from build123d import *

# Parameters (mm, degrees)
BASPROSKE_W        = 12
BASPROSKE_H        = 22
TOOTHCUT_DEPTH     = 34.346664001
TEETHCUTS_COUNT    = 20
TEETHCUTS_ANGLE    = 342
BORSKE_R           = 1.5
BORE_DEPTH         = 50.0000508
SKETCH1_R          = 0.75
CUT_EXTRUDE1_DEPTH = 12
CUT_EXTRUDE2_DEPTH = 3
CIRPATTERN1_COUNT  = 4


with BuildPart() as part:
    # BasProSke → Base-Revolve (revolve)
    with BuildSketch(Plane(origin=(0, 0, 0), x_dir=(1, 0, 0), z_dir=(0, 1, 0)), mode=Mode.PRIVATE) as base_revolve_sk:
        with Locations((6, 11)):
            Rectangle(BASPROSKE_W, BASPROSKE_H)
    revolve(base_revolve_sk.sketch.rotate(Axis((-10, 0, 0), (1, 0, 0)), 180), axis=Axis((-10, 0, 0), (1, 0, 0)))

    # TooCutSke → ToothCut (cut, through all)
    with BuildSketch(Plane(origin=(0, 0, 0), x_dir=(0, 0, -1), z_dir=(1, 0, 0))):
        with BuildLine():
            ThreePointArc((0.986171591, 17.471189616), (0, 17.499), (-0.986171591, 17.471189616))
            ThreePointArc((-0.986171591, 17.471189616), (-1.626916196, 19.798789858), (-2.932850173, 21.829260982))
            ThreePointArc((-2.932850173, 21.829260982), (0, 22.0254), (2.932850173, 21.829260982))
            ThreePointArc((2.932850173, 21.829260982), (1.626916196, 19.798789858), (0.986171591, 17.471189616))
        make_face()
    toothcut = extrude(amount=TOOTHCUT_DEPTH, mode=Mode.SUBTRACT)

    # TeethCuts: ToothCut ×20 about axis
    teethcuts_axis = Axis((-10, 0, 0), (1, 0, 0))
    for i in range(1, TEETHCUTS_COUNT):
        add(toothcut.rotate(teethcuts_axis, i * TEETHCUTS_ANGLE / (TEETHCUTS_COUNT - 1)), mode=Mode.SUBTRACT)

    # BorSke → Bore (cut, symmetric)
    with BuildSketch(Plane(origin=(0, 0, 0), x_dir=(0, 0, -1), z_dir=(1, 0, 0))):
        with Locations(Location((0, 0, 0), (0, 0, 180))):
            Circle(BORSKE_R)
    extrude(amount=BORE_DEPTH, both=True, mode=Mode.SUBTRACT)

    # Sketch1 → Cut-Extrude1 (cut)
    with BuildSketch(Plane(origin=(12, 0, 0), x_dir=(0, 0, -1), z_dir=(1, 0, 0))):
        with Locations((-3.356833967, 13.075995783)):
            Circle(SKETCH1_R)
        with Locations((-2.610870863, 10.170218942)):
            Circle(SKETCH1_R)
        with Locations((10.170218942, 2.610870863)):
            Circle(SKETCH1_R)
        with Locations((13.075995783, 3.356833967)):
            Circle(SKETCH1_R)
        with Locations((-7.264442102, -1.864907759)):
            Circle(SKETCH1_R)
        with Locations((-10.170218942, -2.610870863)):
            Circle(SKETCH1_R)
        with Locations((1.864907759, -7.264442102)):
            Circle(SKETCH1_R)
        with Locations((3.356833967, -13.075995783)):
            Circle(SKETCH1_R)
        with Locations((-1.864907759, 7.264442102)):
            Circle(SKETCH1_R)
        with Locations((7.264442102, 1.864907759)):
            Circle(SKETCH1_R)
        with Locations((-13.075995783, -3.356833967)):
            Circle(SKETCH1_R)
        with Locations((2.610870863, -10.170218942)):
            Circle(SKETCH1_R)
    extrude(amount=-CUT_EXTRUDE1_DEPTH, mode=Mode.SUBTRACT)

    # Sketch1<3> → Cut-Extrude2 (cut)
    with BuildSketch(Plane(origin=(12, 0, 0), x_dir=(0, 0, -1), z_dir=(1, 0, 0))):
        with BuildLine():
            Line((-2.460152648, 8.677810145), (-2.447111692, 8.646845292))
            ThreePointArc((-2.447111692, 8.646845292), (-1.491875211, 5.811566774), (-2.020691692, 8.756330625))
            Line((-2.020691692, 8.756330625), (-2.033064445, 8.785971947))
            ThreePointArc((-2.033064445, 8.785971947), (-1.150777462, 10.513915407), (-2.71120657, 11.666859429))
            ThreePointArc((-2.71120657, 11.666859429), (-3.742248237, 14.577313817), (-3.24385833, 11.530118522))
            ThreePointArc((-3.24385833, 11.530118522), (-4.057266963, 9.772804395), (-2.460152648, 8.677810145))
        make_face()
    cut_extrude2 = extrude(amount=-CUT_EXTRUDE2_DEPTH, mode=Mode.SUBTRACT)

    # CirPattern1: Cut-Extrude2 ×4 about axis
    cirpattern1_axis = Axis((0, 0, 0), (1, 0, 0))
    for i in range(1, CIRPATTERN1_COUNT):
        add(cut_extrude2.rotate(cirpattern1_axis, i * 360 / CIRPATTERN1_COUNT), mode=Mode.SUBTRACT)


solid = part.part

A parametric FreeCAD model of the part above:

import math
import FreeCAD as App
import Part
import Sketcher
Q = App.Units.Quantity


def add_polygon(sketch, points):
    """Adds a closed chain of lines whose ends are joined by coincident constraints."""
    first, n = sketch.GeometryCount, len(points)
    for a, b in zip(points, points[1:] + points[:1]):
        sketch.addGeometry(Part.LineSegment(App.Vector(*a, 0), App.Vector(*b, 0)), False)
    for i in range(n):
        sketch.addConstraint(Sketcher.Constraint("Coincident", first + i, 2, first + (i + 1) % n, 1))

doc = App.newDocument("Part")
params = doc.addObject("Spreadsheet::Sheet", "Params")
for row, (alias, value) in enumerate([
    ("sketch1_width", "12 mm"),
    ("sketch1_height", "22 mm"),
    ("revolution_angle", "360 deg"),
    ("sketch2_radius", "8 mm"),
    ("sketch3_diameter", "3 mm"),
    ("pocket2_length", "100.000102 mm"),
    ("sketch4_diameter", "1.5 mm"),
    ("pocket3_length", "12 mm"),
    ("sketch5_radius", "1.5 mm"),
    ("sketch5_radius2", "1.55 mm"),
    ("pocket4_length", "3 mm"),
], start=1):
    params.set(f"A{row}", alias)
    params.set(f"B{row}", "=" + value)
    params.setAlias(f"B{row}", alias)

body = doc.addObject("PartDesign::Body", "Body")

sketch1 = body.newObject("Sketcher::SketchObject", "Sketch")
sketch1.AttachmentSupport = (doc.getObject("XZ_Plane"), [""])
sketch1.MapMode = "FlatFace"
add_polygon(sketch1, [(0, -22), (0, 0), (12, 0), (12, -22)])
sketch1.addConstraint([
    Sketcher.Constraint("Vertical", 0),
    Sketcher.Constraint("Horizontal", 1),
    Sketcher.Constraint("Vertical", 2),
    Sketcher.Constraint("Horizontal", 3),
    Sketcher.Constraint("Coincident", 0, 2, -1, 1),
    Sketcher.Constraint("DistanceX", 1, 1, 1, 2, Q("12 mm")),
    Sketcher.Constraint("DistanceY", 0, 1, 0, 2, Q("22 mm")),
])
sketch1.setExpression("Constraints[9]", "Params.sketch1_width")
sketch1.setExpression("Constraints[10]", "Params.sketch1_height")
revolution = body.newObject("PartDesign::Revolution", "Revolution")
revolution.Profile = sketch1
revolution.ReferenceAxis = (sketch1, ["H_Axis"])
revolution.setExpression("Angle", "Params.revolution_angle")

sketch2 = body.newObject("Sketcher::SketchObject", "Sketch001")
sketch2.AttachmentSupport = (doc.getObject("YZ_Plane"), [""])
sketch2.MapMode = "FlatFace"
sketch2.addGeometry([
    Part.ArcOfCircle(Part.Circle(App.Vector(0, 0, 0), App.Vector(0, 0, 1), 17.499), math.radians(-3.230666), math.radians(3.230666)),
    Part.ArcOfCircle(Part.Circle(App.Vector(16.536031, -8.931326, 0), App.Vector(0, 0, 1), 8), math.radians(48.573876), math.radians(83.287069)),
    Part.ArcOfCircle(Part.Circle(App.Vector(0, 0, 0), App.Vector(0, 0, 1), 22.0254), math.radians(-7.652098), math.radians(7.652098)),
    Part.ArcOfCircle(Part.Circle(App.Vector(16.536031, 8.931326, 0), App.Vector(0, 0, 1), 8), math.radians(-83.287069), math.radians(-48.573876)),
], False)
sketch2.addConstraint([
    Sketcher.Constraint("Coincident", 0, 1, 1, 2),
    Sketcher.Constraint("Coincident", 1, 1, 2, 1),
    Sketcher.Constraint("Coincident", 2, 2, 3, 2),
    Sketcher.Constraint("Coincident", 3, 1, 0, 2),
    Sketcher.Constraint("Coincident", 0, 3, -1, 1),
    Sketcher.Constraint("Coincident", 2, 3, -1, 1),
    Sketcher.Constraint("Equal", 1, 3),
    Sketcher.Constraint("Symmetric", 1, 3, 3, 3, -1),
    Sketcher.Constraint("Radius", 1, Q("8 mm")),
    Sketcher.Constraint("Radius", 0, Q("17.499 mm")),
    Sketcher.Constraint("Radius", 2, Q("22.0254 mm")),
    Sketcher.Constraint("DistanceY", 1, 1, 2, 2, Q("5.8657 mm")),
    Sketcher.Constraint("DistanceX", -1, 1, 1, 3, Q("16.536031 mm")),
])
sketch2.setExpression("Constraints[8]", "Params.sketch2_radius")
pocket1 = body.newObject("PartDesign::Pocket", "Pocket")
pocket1.Profile = sketch2
pocket1.Type = "ThroughAll"
pocket1.Reversed = True
doc.recompute()

polarpattern = body.newObject("PartDesign::PolarPattern", "PolarPattern")
polarpattern.Originals = [pocket1]
polarpattern.Axis = (doc.getObject("X_Axis"), [""])
polarpattern.Angle = 360
polarpattern.Occurrences = 20
body.Tip = polarpattern

sketch3 = body.newObject("Sketcher::SketchObject", "Sketch002")
sketch3.AttachmentSupport = (doc.getObject("YZ_Plane"), [""])
sketch3.MapMode = "FlatFace"
sketch3.addGeometry(Part.Circle(App.Vector(0, 0, 0), App.Vector(0, 0, 1), 1.5), False)
sketch3.addConstraint([
    Sketcher.Constraint("Coincident", 0, 3, -1, 1),
    Sketcher.Constraint("Diameter", 0, Q("3 mm")),
])
sketch3.setExpression("Constraints[1]", "Params.sketch3_diameter")
pocket2 = body.newObject("PartDesign::Pocket", "Pocket001")
pocket2.Profile = sketch3
pocket2.setExpression("Length", "Params.pocket2_length")
pocket2.Midplane = True

sketch4 = body.newObject("Sketcher::SketchObject", "Sketch003")
sketch4.AttachmentSupport = (doc.getObject("YZ_Plane"), [""])
sketch4.MapMode = "FlatFace"
sketch4.AttachmentOffset = App.Placement(App.Vector(0, 0, 12), App.Rotation())
sketch4.addGeometry([
    Part.Circle(App.Vector(13.075996, 3.356834, 0), App.Vector(0, 0, 1), 0.75),
    Part.Circle(App.Vector(10.170219, 2.610871, 0), App.Vector(0, 0, 1), 0.75),
    Part.Circle(App.Vector(2.610871, -10.170219, 0), App.Vector(0, 0, 1), 0.75),
    Part.Circle(App.Vector(3.356834, -13.075996, 0), App.Vector(0, 0, 1), 0.75),
    Part.Circle(App.Vector(-1.864908, 7.264442, 0), App.Vector(0, 0, 1), 0.75),
    Part.Circle(App.Vector(-2.610871, 10.170219, 0), App.Vector(0, 0, 1), 0.75),
    Part.Circle(App.Vector(-7.264442, -1.864908, 0), App.Vector(0, 0, 1), 0.75),
    Part.Circle(App.Vector(-13.075996, -3.356834, 0), App.Vector(0, 0, 1), 0.75),
    Part.Circle(App.Vector(7.264442, 1.864908, 0), App.Vector(0, 0, 1), 0.75),
    Part.Circle(App.Vector(1.864908, -7.264442, 0), App.Vector(0, 0, 1), 0.75),
    Part.Circle(App.Vector(-3.356834, 13.075996, 0), App.Vector(0, 0, 1), 0.75),
    Part.Circle(App.Vector(-10.170219, -2.610871, 0), App.Vector(0, 0, 1), 0.75),
], False)
sketch4.addConstraint([
    Sketcher.Constraint("Equal", 0, 1),
    Sketcher.Constraint("Equal", 1, 2),
    Sketcher.Constraint("Equal", 2, 3),
    Sketcher.Constraint("Equal", 3, 4),
    Sketcher.Constraint("Equal", 4, 5),
    Sketcher.Constraint("Equal", 5, 6),
    Sketcher.Constraint("Equal", 6, 7),
    Sketcher.Constraint("Equal", 7, 8),
    Sketcher.Constraint("Equal", 8, 9),
    Sketcher.Constraint("Equal", 9, 10),
    Sketcher.Constraint("Equal", 10, 11),
    Sketcher.Constraint("Symmetric", 2, 3, 5, 3, -1, 1),
    Sketcher.Constraint("Symmetric", 0, 3, 7, 3, -1, 1),
    Sketcher.Constraint("Symmetric", 6, 3, 8, 3, -1, 1),
    Sketcher.Constraint("Symmetric", 4, 3, 9, 3, -1, 1),
    Sketcher.Constraint("Symmetric", 3, 3, 10, 3, -1, 1),
    Sketcher.Constraint("Symmetric", 1, 3, 11, 3, -1, 1),
    Sketcher.Constraint("Diameter", 0, Q("1.5 mm")),
    Sketcher.Constraint("DistanceX", -1, 1, 1, 3, Q("10.170219 mm")),
    Sketcher.Constraint("DistanceY", -1, 1, 1, 3, Q("2.610871 mm")),
    Sketcher.Constraint("DistanceX", -1, 1, 2, 3, Q("2.610871 mm")),
    Sketcher.Constraint("DistanceY", 2, 3, -1, 1, Q("10.170219 mm")),
    Sketcher.Constraint("DistanceX", 3, 3, 0, 3, Q("9.719162 mm")),
    Sketcher.Constraint("DistanceY", 3, 3, 0, 3, Q("16.43283 mm")),
    Sketcher.Constraint("DistanceY", 1, 3, 4, 3, Q("4.653571 mm")),
    Sketcher.Constraint("DistanceY", 0, 3, 4, 3, Q("3.907608 mm")),
    Sketcher.Constraint("DistanceX", 4, 3, 2, 3, Q("4.475779 mm")),
    Sketcher.Constraint("DistanceX", 4, 3, 3, 3, Q("5.221742 mm")),
    Sketcher.Constraint("DistanceY", 6, 3, 4, 3, Q("9.12935 mm")),
    Sketcher.Constraint("DistanceX", 6, 3, 5, 3, Q("4.653571 mm")),
])
sketch4.setExpression("Constraints[17]", "Params.sketch4_diameter")
pocket3 = body.newObject("PartDesign::Pocket", "Pocket002")
pocket3.Profile = sketch4
pocket3.setExpression("Length", "Params.pocket3_length")

sketch5 = body.newObject("Sketcher::SketchObject", "Sketch004")
sketch5.AttachmentSupport = (doc.getObject("YZ_Plane"), [""])
sketch5.MapMode = "FlatFace"
sketch5.AttachmentOffset = App.Placement(App.Vector(0, 0, 12), App.Rotation())
sketch5.addGeometry([
    Part.LineSegment(App.Vector(8.67781, 2.460153, 0), App.Vector(8.646845, 2.447112, 0)),
    Part.ArcOfCircle(Part.Circle(App.Vector(7.264442, 1.864908, 0), App.Vector(0, 0, 1), 1.5), math.radians(22.838563), math.radians(365.961257)),
    Part.LineSegment(App.Vector(8.756331, 2.020692, 0), App.Vector(8.785972, 2.033064, 0)),
    Part.ArcOfCircle(Part.Circle(App.Vector(10.170219, 2.610871, 0), App.Vector(0, 0, 1), 1.5), math.radians(-157.343577), math.radians(3.835405)),
    Part.ArcOfCircle(Part.Circle(App.Vector(13.075996, 3.356834, 0), App.Vector(0, 0, 1), 1.55), math.radians(-155.384055), math.radians(184.179853)),
    Part.ArcOfCircle(Part.Circle(App.Vector(10.170219, 2.610871, 0), App.Vector(0, 0, 1), 1.5), math.radians(24.960392), math.radians(185.766743)),
], False)
sketch5.addConstraint([
    Sketcher.Constraint("Coincident", 0, 2, 1, 1),
    Sketcher.Constraint("Coincident", 1, 2, 2, 1),
    Sketcher.Constraint("Coincident", 2, 2, 3, 1),
    Sketcher.Constraint("Coincident", 3, 2, 4, 1),
    Sketcher.Constraint("Coincident", 4, 2, 5, 1),
    Sketcher.Constraint("Coincident", 5, 2, 0, 1),
    Sketcher.Constraint("Coincident", 5, 3, 3, 3),
    Sketcher.Constraint("Equal", 1, 3),
    Sketcher.Constraint("Equal", 3, 5),
    Sketcher.Constraint("Radius", 1, Q("1.5 mm")),
    Sketcher.Constraint("Radius", 4, Q("1.55 mm")),
    Sketcher.Constraint("Distance", 0, Q("0.033599 mm")),
    Sketcher.Constraint("DistanceX", 3, 3, 4, 2, Q("1.3599 mm")),
    Sketcher.Constraint("Distance", 2, Q("0.03212 mm")),
    Sketcher.Constraint("DistanceX", -1, 1, 3, 3, Q("10.170219 mm")),
    Sketcher.Constraint("DistanceY", -1, 1, 3, 3, Q("2.610871 mm")),
    Sketcher.Constraint("DistanceY", -1, 1, 0, 2, Q("2.447112 mm")),
    Sketcher.Constraint("DistanceX", -1, 1, 1, 2, Q("8.756331 mm")),
    Sketcher.Constraint("DistanceX", -1, 1, 2, 2, Q("8.785972 mm")),
    Sketcher.Constraint("DistanceX", -1, 1, 3, 2, Q("11.666859 mm")),
    Sketcher.Constraint("DistanceX", -1, 1, 5, 2, Q("8.67781 mm")),
])
sketch5.setExpression("Constraints[9]", "Params.sketch5_radius")
sketch5.setExpression("Constraints[10]", "Params.sketch5_radius2")
pocket4 = body.newObject("PartDesign::Pocket", "Pocket003")
pocket4.Profile = sketch5
pocket4.setExpression("Length", "Params.pocket4_length")
doc.recompute()

polarpattern2 = body.newObject("PartDesign::PolarPattern", "PolarPattern001")
polarpattern2.Originals = [pocket4]
polarpattern2.Axis = (doc.getObject("X_Axis"), [""])
polarpattern2.Angle = 360
polarpattern2.Occurrences = 4
body.Tip = polarpattern2

doc.recompute()
